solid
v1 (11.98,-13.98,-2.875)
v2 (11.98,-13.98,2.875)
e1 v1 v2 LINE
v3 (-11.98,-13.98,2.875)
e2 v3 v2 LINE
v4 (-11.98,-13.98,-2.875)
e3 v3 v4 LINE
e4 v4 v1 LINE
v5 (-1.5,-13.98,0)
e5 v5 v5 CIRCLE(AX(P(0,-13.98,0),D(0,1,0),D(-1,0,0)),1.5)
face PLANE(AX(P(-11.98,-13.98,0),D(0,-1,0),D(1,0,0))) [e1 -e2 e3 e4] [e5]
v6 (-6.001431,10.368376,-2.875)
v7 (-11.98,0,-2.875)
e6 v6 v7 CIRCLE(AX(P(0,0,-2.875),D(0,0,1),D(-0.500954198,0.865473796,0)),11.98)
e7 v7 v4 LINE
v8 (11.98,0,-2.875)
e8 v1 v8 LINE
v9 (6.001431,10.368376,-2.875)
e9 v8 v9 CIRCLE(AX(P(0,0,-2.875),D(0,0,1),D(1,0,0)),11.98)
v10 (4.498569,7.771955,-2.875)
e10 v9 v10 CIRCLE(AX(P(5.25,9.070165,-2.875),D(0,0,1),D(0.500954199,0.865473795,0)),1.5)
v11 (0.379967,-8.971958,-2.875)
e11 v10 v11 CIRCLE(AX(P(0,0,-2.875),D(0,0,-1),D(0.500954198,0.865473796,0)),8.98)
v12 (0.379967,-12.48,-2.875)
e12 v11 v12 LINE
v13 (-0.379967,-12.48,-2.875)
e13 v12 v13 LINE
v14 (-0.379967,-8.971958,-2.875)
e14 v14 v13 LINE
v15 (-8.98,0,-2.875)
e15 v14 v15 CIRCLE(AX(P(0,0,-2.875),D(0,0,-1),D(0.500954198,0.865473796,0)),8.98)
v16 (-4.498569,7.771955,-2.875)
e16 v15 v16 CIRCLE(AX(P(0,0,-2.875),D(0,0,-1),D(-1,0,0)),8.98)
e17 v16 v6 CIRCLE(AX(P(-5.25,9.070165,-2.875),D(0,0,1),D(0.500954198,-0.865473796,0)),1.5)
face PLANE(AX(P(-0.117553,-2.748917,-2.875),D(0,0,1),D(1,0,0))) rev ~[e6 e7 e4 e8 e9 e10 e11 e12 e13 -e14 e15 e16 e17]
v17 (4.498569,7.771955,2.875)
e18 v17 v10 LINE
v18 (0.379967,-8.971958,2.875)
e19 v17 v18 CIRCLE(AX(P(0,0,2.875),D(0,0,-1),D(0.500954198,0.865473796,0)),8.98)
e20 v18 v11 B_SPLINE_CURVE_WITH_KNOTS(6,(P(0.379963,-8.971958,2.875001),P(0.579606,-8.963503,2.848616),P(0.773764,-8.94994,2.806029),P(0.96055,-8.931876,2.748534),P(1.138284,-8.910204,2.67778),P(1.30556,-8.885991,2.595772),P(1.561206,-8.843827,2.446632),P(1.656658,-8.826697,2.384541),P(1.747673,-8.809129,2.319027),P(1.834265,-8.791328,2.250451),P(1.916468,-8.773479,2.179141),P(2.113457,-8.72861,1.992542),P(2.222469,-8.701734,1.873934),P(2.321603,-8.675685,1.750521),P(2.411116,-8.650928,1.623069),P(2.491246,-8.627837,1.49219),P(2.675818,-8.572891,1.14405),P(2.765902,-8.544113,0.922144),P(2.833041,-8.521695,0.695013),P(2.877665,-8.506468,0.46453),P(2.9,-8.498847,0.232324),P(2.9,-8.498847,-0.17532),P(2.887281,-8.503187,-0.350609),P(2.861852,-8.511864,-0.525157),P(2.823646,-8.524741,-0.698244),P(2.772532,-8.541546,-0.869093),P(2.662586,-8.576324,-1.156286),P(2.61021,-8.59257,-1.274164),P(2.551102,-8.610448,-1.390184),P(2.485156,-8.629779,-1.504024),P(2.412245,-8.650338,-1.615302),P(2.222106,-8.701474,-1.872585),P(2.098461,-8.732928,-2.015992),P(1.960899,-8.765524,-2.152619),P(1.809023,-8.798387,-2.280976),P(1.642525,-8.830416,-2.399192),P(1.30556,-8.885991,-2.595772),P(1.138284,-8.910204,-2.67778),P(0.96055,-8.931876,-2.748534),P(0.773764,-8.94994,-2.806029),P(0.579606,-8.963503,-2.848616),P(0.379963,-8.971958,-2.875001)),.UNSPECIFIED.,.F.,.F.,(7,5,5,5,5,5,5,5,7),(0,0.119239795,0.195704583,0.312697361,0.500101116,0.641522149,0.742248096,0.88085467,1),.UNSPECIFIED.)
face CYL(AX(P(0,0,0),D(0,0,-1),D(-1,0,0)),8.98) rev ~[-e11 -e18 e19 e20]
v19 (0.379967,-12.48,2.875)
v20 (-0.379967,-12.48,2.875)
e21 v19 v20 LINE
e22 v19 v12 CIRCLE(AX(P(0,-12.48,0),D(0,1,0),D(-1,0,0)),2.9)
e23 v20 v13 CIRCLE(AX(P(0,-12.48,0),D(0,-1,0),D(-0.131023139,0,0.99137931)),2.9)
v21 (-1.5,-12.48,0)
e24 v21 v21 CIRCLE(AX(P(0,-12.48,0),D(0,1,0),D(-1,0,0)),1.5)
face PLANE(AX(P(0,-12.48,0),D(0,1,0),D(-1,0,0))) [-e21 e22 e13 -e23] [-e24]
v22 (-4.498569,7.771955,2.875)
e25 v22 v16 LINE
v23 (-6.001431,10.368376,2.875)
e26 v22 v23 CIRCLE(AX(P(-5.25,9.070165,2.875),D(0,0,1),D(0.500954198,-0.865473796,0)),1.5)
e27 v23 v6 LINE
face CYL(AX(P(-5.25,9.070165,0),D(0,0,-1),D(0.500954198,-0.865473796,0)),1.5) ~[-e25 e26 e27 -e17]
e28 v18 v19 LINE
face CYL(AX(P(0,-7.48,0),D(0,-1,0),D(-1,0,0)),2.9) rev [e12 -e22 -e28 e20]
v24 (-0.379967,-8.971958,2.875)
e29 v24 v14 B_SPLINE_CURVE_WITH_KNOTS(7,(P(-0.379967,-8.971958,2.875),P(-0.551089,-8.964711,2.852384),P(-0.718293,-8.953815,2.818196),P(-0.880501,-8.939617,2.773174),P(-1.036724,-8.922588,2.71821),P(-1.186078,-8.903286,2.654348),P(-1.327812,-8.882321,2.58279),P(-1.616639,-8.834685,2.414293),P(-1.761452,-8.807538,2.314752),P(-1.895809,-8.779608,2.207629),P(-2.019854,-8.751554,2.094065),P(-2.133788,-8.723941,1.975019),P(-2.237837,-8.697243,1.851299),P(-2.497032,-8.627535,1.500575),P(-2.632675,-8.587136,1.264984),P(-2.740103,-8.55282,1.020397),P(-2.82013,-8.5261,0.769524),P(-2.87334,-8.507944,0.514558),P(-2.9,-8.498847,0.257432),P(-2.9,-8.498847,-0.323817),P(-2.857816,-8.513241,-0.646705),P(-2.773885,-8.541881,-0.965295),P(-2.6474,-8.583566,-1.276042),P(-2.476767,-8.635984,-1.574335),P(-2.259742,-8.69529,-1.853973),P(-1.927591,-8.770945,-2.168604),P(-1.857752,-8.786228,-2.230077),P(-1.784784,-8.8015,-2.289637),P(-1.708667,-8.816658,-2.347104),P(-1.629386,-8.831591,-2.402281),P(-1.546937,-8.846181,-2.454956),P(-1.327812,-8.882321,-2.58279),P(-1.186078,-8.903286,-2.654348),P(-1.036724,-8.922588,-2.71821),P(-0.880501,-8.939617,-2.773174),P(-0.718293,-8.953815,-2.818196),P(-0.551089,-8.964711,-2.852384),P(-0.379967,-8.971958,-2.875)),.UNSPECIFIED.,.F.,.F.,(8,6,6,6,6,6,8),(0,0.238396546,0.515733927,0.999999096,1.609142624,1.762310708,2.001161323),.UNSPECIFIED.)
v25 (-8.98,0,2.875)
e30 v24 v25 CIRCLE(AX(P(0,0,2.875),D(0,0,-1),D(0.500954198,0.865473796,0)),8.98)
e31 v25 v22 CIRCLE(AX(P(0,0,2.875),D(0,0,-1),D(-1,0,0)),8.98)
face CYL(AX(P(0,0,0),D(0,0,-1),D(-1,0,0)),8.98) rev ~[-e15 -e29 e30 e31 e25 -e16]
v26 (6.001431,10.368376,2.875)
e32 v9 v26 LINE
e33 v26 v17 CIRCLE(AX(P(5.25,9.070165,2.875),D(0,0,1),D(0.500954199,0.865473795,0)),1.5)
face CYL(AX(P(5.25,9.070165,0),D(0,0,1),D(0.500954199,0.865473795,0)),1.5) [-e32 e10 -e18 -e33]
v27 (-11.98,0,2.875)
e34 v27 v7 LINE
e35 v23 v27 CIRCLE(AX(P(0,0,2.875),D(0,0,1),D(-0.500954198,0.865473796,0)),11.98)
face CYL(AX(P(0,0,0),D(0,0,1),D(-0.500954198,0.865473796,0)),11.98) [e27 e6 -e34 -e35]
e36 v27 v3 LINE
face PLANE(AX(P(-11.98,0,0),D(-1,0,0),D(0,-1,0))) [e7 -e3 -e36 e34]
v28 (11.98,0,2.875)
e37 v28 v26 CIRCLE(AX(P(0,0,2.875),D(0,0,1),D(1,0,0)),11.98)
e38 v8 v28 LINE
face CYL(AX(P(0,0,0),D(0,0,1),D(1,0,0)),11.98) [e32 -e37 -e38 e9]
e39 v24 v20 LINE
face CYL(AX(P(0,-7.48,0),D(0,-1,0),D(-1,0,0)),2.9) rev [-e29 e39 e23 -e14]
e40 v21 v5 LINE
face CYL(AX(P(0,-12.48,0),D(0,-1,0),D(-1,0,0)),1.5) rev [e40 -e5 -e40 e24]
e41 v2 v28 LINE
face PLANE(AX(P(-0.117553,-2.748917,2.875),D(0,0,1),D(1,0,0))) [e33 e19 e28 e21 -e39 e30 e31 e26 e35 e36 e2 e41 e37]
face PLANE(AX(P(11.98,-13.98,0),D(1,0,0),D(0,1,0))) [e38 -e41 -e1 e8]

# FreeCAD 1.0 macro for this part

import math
import FreeCAD as App
import Part
import Sketcher


def add_polygon(sketch, points):
    """Adds a closed chain of lines whose ends are joined by coincident constraints."""
    first, n = sketch.GeometryCount, len(points)
    for a, b in zip(points, points[1:] + points[:1]):
        sketch.addGeometry(Part.LineSegment(App.Vector(*a, 0), App.Vector(*b, 0)), False)
    for i in range(n):
        sketch.addConstraint(Sketcher.Constraint("Coincident", first + i, 2, first + (i + 1) % n, 1))

doc = App.newDocument("Part")
body = doc.addObject("PartDesign::Body", "Body")

sketch1 = doc.addObject("Sketcher::SketchObject", "Sketch")
body.addObject(sketch1)
sketch1.AttachmentSupport = (doc.XY_Plane, [""])
sketch1.MapMode = "FlatFace"
sketch1.addGeometry(Part.LineSegment(App.Vector(-11.98, -13.98, 0), App.Vector(11.98, -13.98, 0)), False)
sketch1.addGeometry(Part.LineSegment(App.Vector(11.98, -13.98, 0), App.Vector(11.98, 0, 0)), False)
sketch1.addGeometry(Part.ArcOfCircle(Part.Circle(App.Vector(0, 0, 0), App.Vector(0, 0, 1), 11.98), math.radians(0), math.radians(59.936851)), False)
sketch1.addGeometry(Part.ArcOfCircle(Part.Circle(App.Vector(5.25, 9.070165, 0), App.Vector(0, 0, 1), 1.5), math.radians(59.936851), math.radians(239.936851)), False)
sketch1.addGeometry(Part.ArcOfCircle(Part.Circle(App.Vector(0, 0, 0), App.Vector(0, 0, 1), 8.98), math.radians(180), math.radians(419.936851)), False)
sketch1.addGeometry(Part.ArcOfCircle(Part.Circle(App.Vector(0, 0, 0), App.Vector(0, 0, 1), 8.98), math.radians(120.063149), math.radians(180)), False)
sketch1.addGeometry(Part.ArcOfCircle(Part.Circle(App.Vector(-5.25, 9.070165, 0), App.Vector(0, 0, 1), 1.5), math.radians(-59.936851), math.radians(120.063149)), False)
sketch1.addGeometry(Part.ArcOfCircle(Part.Circle(App.Vector(0, 0, 0), App.Vector(0, 0, 1), 11.98), math.radians(120.063149), math.radians(180)), False)
sketch1.addGeometry(Part.LineSegment(App.Vector(-11.98, 0, 0), App.Vector(-11.98, -13.98, 0)), False)
sketch1.addConstraint(Sketcher.Constraint("Coincident", 0, 2, 1, 1))
sketch1.addConstraint(Sketcher.Constraint("Tangent", 1, 2, 2, 1))
sketch1.addConstraint(Sketcher.Constraint("Tangent", 2, 2, 3, 1))
sketch1.addConstraint(Sketcher.Constraint("Tangent", 3, 2, 4, 2))
sketch1.addConstraint(Sketcher.Constraint("Tangent", 4, 1, 5, 2))
sketch1.addConstraint(Sketcher.Constraint("Tangent", 5, 1, 6, 1))
sketch1.addConstraint(Sketcher.Constraint("Tangent", 6, 2, 7, 1))
sketch1.addConstraint(Sketcher.Constraint("Tangent", 7, 2, 8, 1))
sketch1.addConstraint(Sketcher.Constraint("Coincident", 8, 2, 0, 1))
sketch1.addConstraint(Sketcher.Constraint("Horizontal", 0))
sketch1.addConstraint(Sketcher.Constraint("Vertical", 1))
sketch1.addConstraint(Sketcher.Constraint("Vertical", 8))
sketch1.addConstraint(Sketcher.Constraint("Coincident", 2, 3, -1, 1))
sketch1.addConstraint(Sketcher.Constraint("Coincident", 4, 3, -1, 1))
sketch1.addConstraint(Sketcher.Constraint("Coincident", 7, 3, -1, 1))
sketch1.addConstraint(Sketcher.Constraint("Equal", 4, 5))
sketch1.addConstraint(Sketcher.Constraint("Equal", 3, 6))
sketch1.addConstraint(Sketcher.Constraint("PointOnObject", 4, 1, -1))
sketch1.addConstraint(Sketcher.Constraint("Horizontal", 3, 3, 6, 3))
sketch1.addConstraint(Sketcher.Constraint("Radius", 3, 1.5))
sketch1.addConstraint(Sketcher.Constraint("Radius", 2, 11.98))
sketch1.addConstraint(Sketcher.Constraint("DistanceY", 1, 1, 1, 2, 13.98))
sketch1.addConstraint(Sketcher.Constraint("DistanceX", 6, 3, 3, 3, 10.5))
pad1 = doc.addObject("PartDesign::Pad", "Pad")
body.addObject(pad1)
pad1.Profile = sketch1
pad1.Length = 5.75
pad1.Midplane = True

sketch2 = doc.addObject("Sketcher::SketchObject", "Sketch001")
body.addObject(sketch2)
sketch2.AttachmentSupport = (doc.XY_Plane, [""])
sketch2.MapMode = "FlatFace"
add_polygon(sketch2, [(-1.5, -13.98), (0, -13.98), (0, -7.48), (-2.9, -7.48), (-2.9, -12.48), (-1.5, -12.48)])
sketch2.addConstraint(Sketcher.Constraint("Horizontal", 0))
sketch2.addConstraint(Sketcher.Constraint("Vertical", 1))
sketch2.addConstraint(Sketcher.Constraint("Horizontal", 2))
sketch2.addConstraint(Sketcher.Constraint("Vertical", 3))
sketch2.addConstraint(Sketcher.Constraint("Horizontal", 4))
sketch2.addConstraint(Sketcher.Constraint("Vertical", 5))
sketch2.addConstraint(Sketcher.Constraint("PointOnObject", 0, 2, -2))
sketch2.addConstraint(Sketcher.Constraint("Equal", 0, 5))
sketch2.addConstraint(Sketcher.Constraint("DistanceY", 3, 2, 3, 1, 5.0))
sketch2.addConstraint(Sketcher.Constraint("DistanceX", 0, 1, 0, 2, 1.5))
sketch2.addConstraint(Sketcher.Constraint("DistanceX", 2, 2, 2, 1, 2.9))
sketch2.addConstraint(Sketcher.Constraint("DistanceY", 0, 2, -1, 1, 13.98))
groove = doc.addObject("PartDesign::Groove", "Groove")
body.addObject(groove)
groove.Profile = sketch2
groove.ReferenceAxis = (sketch2, ["V_Axis"])
groove.Angle = 360

doc.recompute()
